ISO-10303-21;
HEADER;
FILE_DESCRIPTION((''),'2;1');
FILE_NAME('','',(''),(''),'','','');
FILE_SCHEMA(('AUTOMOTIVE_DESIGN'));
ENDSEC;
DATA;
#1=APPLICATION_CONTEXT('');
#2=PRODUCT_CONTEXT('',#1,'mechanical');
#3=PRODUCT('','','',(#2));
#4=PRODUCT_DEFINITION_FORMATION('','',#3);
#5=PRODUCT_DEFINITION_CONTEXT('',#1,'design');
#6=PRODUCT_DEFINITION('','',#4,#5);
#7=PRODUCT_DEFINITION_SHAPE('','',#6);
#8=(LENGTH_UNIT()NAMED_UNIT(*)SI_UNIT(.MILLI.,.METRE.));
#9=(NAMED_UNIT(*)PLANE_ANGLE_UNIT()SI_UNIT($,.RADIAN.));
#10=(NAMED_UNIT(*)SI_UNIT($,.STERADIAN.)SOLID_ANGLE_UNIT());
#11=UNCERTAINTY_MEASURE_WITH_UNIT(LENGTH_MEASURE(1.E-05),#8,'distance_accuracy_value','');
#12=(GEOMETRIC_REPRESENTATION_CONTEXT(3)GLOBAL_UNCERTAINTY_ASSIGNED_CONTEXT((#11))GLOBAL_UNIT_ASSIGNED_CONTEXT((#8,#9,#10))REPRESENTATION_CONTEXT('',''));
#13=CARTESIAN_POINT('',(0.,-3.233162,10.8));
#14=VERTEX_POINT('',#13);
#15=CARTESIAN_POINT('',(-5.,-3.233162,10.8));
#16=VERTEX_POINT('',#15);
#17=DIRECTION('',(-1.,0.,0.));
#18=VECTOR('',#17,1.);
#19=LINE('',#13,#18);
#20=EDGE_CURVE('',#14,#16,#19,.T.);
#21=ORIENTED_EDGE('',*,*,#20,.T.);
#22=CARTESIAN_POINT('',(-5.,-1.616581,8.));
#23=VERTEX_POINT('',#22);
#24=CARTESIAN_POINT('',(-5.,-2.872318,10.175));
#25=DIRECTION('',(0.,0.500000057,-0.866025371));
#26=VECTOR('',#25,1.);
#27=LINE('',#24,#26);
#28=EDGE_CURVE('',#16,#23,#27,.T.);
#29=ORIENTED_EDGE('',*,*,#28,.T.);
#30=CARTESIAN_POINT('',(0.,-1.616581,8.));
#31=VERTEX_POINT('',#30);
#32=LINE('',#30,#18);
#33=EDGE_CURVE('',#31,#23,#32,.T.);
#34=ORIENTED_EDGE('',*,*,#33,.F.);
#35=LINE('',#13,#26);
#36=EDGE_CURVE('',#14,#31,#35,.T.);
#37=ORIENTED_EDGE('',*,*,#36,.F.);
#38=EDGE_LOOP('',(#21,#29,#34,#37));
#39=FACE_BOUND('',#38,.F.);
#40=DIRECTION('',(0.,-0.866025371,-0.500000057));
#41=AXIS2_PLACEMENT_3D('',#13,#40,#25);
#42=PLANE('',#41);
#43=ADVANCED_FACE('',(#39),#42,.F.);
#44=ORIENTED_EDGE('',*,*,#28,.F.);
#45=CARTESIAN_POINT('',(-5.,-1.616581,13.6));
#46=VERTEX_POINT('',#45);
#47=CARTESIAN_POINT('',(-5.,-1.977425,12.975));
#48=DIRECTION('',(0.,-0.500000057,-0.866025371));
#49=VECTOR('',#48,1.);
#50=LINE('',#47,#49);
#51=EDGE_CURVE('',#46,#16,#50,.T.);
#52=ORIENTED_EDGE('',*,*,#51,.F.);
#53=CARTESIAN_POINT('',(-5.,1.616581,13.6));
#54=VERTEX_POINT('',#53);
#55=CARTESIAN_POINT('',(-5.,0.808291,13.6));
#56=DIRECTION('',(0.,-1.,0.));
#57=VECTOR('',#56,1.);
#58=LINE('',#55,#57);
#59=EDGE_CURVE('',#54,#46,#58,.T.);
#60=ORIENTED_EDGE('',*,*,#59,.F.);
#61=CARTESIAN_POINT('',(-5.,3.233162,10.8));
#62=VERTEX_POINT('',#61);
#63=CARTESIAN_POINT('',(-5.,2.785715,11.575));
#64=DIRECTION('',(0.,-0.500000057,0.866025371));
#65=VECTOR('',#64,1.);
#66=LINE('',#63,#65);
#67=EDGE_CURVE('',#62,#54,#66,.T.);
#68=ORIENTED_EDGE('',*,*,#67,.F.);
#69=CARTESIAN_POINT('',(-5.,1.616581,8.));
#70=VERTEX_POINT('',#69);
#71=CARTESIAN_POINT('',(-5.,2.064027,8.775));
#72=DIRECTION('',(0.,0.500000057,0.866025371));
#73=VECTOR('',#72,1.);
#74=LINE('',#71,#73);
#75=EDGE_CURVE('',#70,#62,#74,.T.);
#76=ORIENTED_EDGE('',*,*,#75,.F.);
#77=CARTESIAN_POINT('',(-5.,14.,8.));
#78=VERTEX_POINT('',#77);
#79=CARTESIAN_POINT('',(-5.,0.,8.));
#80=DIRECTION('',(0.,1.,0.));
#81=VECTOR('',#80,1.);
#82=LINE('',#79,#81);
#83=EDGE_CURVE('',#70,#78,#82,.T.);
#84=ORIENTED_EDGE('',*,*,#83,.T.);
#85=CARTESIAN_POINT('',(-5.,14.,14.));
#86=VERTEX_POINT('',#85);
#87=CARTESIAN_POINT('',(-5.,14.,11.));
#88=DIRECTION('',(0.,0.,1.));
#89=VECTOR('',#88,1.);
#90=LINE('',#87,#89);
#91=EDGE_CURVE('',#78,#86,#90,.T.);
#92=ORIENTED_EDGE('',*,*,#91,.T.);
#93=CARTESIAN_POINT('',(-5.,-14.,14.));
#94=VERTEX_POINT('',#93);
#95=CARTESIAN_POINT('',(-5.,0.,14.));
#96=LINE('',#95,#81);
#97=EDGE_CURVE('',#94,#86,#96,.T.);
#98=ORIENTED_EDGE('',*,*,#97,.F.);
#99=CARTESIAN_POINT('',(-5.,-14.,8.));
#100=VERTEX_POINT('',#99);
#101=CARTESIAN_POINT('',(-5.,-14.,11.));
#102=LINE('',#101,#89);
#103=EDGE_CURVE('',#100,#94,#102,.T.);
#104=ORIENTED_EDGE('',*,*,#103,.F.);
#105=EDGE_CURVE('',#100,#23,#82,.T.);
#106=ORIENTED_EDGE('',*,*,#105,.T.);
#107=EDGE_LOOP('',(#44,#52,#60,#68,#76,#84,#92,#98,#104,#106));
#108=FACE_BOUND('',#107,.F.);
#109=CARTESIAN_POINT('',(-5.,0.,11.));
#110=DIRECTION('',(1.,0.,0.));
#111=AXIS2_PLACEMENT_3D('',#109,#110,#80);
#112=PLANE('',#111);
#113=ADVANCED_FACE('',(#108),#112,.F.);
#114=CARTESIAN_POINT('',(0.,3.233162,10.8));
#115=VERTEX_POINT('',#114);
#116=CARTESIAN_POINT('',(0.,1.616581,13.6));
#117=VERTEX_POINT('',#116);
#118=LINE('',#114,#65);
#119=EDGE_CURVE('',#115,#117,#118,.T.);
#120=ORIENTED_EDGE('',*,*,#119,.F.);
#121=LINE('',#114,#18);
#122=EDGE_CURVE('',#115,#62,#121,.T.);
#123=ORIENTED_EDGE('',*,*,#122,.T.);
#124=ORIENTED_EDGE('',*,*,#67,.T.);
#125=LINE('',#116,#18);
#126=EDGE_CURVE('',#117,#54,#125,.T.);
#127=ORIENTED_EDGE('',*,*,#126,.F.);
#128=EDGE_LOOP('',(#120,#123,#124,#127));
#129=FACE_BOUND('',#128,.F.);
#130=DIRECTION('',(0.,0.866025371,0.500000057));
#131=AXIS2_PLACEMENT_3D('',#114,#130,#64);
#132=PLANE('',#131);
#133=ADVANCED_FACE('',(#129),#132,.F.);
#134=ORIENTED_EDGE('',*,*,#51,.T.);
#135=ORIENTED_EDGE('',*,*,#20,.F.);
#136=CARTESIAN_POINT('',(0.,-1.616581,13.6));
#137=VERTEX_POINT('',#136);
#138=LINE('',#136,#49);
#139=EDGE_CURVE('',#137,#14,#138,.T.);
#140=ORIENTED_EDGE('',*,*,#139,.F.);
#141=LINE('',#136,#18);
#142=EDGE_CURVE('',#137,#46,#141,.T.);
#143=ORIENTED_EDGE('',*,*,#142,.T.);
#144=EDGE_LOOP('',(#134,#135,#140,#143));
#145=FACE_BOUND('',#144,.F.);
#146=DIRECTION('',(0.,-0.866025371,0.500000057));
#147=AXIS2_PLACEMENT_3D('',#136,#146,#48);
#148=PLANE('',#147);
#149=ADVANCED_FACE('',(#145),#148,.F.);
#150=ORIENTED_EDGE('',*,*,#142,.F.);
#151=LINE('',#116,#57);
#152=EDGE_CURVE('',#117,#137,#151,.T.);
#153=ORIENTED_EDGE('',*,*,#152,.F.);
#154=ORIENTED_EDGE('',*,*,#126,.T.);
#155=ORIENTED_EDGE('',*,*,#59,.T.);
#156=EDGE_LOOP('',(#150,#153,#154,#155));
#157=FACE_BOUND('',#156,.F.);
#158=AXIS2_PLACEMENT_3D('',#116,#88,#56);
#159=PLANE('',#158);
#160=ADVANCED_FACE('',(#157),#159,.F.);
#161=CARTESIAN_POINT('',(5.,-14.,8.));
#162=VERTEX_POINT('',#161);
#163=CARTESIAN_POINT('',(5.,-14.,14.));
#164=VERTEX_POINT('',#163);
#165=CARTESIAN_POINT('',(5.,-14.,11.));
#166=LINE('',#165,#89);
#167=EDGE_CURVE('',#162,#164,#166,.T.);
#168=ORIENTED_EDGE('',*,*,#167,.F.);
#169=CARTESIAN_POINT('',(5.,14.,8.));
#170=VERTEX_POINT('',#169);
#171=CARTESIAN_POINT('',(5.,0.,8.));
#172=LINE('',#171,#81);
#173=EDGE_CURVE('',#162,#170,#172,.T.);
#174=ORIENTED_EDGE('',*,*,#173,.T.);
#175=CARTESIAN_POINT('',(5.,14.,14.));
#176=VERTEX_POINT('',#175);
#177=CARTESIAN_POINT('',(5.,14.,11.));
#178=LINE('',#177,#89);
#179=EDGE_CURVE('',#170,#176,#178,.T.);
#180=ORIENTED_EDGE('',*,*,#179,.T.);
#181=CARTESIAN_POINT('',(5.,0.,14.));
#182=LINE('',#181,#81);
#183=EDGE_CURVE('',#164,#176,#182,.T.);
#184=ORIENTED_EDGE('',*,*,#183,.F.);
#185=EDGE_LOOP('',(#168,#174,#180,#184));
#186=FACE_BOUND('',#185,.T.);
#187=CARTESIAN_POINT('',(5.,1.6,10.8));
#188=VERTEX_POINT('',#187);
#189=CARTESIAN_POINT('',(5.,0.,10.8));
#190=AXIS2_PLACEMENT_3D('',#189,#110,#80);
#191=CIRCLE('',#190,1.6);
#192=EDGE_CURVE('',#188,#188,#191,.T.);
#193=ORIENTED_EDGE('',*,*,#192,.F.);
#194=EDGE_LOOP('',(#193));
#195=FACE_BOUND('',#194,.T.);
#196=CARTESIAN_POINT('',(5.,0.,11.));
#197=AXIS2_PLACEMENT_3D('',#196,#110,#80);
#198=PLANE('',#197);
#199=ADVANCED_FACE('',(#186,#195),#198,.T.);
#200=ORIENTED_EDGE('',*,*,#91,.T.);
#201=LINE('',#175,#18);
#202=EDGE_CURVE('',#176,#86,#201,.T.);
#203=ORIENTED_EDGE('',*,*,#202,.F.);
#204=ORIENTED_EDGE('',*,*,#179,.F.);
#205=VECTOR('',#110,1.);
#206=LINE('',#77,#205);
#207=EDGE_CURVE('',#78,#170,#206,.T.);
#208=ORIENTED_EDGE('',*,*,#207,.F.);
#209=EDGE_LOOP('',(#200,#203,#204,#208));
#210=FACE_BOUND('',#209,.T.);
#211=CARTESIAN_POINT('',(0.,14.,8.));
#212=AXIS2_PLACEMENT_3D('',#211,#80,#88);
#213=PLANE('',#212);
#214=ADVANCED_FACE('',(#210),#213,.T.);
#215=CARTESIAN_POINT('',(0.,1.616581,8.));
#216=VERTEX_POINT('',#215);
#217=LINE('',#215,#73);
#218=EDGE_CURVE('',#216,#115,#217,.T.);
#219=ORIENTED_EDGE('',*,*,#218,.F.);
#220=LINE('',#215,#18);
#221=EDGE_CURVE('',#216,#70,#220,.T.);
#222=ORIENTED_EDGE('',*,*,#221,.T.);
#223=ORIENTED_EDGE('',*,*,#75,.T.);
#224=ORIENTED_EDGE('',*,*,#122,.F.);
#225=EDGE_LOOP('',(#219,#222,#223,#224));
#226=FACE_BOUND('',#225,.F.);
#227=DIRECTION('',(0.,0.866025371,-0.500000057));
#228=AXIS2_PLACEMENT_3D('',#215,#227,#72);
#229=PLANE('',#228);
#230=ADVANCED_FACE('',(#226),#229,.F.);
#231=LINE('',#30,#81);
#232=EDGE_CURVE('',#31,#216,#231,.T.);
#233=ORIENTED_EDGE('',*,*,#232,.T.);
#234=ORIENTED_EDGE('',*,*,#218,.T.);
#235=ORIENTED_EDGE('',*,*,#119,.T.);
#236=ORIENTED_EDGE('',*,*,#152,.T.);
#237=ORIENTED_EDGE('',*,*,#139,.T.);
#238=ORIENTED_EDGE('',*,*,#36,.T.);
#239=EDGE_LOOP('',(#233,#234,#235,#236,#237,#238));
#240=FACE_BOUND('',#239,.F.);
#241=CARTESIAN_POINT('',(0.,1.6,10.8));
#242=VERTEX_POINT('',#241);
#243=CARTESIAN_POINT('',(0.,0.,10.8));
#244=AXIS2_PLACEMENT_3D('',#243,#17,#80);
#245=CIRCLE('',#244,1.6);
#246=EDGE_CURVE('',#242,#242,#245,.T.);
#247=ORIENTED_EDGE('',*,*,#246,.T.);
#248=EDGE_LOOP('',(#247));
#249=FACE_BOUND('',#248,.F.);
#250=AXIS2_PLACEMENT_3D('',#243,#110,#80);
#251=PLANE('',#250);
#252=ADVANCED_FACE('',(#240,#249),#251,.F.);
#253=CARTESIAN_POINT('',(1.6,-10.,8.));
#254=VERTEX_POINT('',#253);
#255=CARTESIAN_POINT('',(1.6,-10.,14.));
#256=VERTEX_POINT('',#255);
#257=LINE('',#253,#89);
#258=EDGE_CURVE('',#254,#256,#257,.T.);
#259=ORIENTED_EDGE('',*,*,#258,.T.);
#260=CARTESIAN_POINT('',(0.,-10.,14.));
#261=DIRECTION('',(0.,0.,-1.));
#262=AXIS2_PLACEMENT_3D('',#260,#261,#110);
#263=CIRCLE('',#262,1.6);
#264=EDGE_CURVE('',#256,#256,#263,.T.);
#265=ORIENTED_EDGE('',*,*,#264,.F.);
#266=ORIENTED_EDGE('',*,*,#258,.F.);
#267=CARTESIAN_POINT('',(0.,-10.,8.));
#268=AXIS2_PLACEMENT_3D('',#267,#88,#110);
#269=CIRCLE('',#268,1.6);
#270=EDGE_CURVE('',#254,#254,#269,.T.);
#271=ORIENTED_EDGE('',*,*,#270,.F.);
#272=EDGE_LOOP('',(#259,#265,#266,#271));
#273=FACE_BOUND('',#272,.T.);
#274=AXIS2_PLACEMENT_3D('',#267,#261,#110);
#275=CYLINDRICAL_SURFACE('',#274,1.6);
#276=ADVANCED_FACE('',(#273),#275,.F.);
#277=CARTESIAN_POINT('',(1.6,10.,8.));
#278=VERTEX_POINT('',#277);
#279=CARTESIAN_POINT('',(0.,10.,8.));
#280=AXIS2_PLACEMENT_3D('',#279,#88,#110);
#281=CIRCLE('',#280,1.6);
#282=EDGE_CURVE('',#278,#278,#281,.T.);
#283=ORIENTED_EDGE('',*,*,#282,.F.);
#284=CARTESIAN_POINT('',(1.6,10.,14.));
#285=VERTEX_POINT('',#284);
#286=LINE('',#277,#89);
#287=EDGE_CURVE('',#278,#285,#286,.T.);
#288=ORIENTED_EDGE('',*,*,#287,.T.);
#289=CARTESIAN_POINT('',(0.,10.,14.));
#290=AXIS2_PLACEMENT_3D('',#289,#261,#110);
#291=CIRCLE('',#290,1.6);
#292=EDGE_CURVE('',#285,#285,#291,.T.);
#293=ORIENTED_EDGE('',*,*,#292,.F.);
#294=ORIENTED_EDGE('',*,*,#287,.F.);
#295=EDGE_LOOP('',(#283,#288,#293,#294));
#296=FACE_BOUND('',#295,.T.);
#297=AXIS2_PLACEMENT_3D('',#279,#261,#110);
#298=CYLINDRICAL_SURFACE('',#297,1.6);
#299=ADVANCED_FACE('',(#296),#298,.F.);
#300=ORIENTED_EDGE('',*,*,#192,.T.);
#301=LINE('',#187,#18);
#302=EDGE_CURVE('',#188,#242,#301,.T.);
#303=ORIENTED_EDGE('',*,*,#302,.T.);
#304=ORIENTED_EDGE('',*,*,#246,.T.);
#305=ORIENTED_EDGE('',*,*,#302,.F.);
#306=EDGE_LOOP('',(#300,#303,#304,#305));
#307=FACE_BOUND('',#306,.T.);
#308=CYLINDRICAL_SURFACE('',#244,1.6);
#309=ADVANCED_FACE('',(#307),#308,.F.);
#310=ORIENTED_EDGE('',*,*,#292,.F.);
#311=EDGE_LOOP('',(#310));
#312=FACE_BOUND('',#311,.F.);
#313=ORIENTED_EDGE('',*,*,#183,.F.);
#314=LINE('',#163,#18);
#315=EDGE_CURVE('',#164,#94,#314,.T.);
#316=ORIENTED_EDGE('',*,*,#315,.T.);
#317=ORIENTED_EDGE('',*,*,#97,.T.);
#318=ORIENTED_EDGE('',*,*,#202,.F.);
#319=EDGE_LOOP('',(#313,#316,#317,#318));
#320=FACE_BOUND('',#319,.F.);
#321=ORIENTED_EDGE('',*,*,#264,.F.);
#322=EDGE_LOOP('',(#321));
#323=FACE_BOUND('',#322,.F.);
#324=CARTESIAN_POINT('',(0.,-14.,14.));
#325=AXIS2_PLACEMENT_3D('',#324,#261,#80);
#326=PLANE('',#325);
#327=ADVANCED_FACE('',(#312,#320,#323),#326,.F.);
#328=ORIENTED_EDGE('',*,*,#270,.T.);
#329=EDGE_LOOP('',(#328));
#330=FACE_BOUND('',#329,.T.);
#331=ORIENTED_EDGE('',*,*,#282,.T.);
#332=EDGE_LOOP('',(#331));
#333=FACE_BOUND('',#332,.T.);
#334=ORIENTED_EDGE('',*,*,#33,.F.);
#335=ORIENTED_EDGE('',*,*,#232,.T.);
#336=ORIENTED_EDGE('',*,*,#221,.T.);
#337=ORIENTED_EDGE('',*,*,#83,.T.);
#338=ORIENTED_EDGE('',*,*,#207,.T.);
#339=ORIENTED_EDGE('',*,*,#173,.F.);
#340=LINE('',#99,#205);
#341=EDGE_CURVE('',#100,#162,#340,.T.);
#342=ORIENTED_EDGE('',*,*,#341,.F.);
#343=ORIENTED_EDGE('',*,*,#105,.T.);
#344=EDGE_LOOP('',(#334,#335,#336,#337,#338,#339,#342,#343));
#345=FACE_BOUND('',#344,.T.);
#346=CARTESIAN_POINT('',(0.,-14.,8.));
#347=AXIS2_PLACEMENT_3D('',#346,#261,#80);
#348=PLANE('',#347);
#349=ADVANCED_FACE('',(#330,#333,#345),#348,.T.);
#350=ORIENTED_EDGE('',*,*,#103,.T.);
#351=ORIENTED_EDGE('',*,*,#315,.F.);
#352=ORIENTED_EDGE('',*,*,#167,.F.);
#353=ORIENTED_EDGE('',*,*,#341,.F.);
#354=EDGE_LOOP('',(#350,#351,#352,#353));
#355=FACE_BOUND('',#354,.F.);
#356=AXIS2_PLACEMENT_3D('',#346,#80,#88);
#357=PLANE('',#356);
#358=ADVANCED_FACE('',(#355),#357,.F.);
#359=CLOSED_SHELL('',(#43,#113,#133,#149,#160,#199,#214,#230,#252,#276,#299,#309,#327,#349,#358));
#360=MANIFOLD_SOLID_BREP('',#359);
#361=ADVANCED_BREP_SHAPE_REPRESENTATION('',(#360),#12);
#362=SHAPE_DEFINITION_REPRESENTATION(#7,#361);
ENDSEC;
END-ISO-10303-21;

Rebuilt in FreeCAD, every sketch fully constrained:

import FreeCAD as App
import Part
import Sketcher
Q = App.Units.Quantity


def add_polygon(sketch, points):
    """Adds a closed chain of lines whose ends are joined by coincident constraints."""
    first, n = sketch.GeometryCount, len(points)
    for a, b in zip(points, points[1:] + points[:1]):
        sketch.addGeometry(Part.LineSegment(App.Vector(*a, 0), App.Vector(*b, 0)), False)
    for i in range(n):
        sketch.addConstraint(Sketcher.Constraint("Coincident", first + i, 2, first + (i + 1) % n, 1))

doc = App.newDocument("Part")
body = doc.addObject("PartDesign::Body", "Body")

# Sketch on YZ plane
sketch1 = doc.addObject("Sketcher::SketchObject", "Sketch")
body.addObject(sketch1)
sketch1.AttachmentSupport = (doc.YZ_Plane, [""])
sketch1.MapMode = "FlatFace"
add_polygon(sketch1, [(-14, 6), (-14, 0), (14, 0), (14, 6)])  # lines 0-3
sketch1.addGeometry(Part.Circle(App.Vector(0, 2.8, 0), App.Vector(0, 0, 1), 1.6), False)  # 4
sketch1.addConstraint(Sketcher.Constraint("Vertical", 0))
sketch1.addConstraint(Sketcher.Constraint("Horizontal", 1))
sketch1.addConstraint(Sketcher.Constraint("Vertical", 2))
sketch1.addConstraint(Sketcher.Constraint("Horizontal", 3))
sketch1.addConstraint(Sketcher.Constraint("Symmetric", 0, 2, 1, 2, -1, 1))
sketch1.addConstraint(Sketcher.Constraint("PointOnObject", 4, 3, -2))
sketch1.addConstraint(Sketcher.Constraint("Diameter", 4, Q("3.2 mm")))
sketch1.addConstraint(Sketcher.Constraint("DistanceX", 1, 1, 1, 2, Q("28 mm")))
sketch1.addConstraint(Sketcher.Constraint("DistanceY", 0, 2, 0, 1, Q("6 mm")))
sketch1.addConstraint(Sketcher.Constraint("DistanceY", -1, 1, 4, 3, Q("2.8 mm")))
pad1 = doc.addObject("PartDesign::Pad", "Pad")
body.addObject(pad1)
pad1.Profile = sketch1
pad1.Length = 10
pad1.Midplane = True

# Sketch on YZ plane
sketch2 = doc.addObject("Sketcher::SketchObject", "Sketch001")
body.addObject(sketch2)
sketch2.AttachmentSupport = (doc.YZ_Plane, [""])
sketch2.MapMode = "FlatFace"
add_polygon(sketch2, [(1.6, 0), (3.2, 2.8), (1.6, 5.6), (-1.6, 5.6), (-3.2, 2.8), (-1.6, 0)])  # lines 0-5
sketch2.addConstraint(Sketcher.Constraint("Horizontal", 2))
sketch2.addConstraint(Sketcher.Constraint("Horizontal", 5))
sketch2.addConstraint(Sketcher.Constraint("Symmetric", 4, 2, 5, 2, -1, 1))
sketch2.addConstraint(Sketcher.Constraint("Symmetric", 0, 2, 3, 2, -2))
sketch2.addConstraint(Sketcher.Constraint("Parallel", 0, 3))
sketch2.addConstraint(Sketcher.Constraint("Parallel", 1, 4))
sketch2.addConstraint(Sketcher.Constraint("Vertical", 2, 2, 4, 2))
sketch2.addConstraint(Sketcher.Constraint("Angle", 0, Q("59.999996 deg")))
sketch2.addConstraint(Sketcher.Constraint("DistanceY", -1, 1, 0, 2, Q("2.8 mm")))
sketch2.addConstraint(Sketcher.Constraint("DistanceX", 2, 2, 2, 1, Q("3.233162 mm")))
pocket1 = doc.addObject("PartDesign::Pocket", "Pocket")
body.addObject(pocket1)
pocket1.Profile = sketch2
pocket1.Type = "ThroughAll"

# Sketch on XY plane
sketch3 = doc.addObject("Sketcher::SketchObject", "Sketch002")
body.addObject(sketch3)
sketch3.AttachmentSupport = (doc.XY_Plane, [""])
sketch3.MapMode = "FlatFace"
sketch3.addGeometry(Part.Circle(App.Vector(0, 10, 0), App.Vector(0, 0, 1), 1.6), False)
sketch3.addGeometry(Part.Circle(App.Vector(0, -10, 0), App.Vector(0, 0, 1), 1.6), False)
sketch3.addConstraint(Sketcher.Constraint("Equal", 0, 1))
sketch3.addConstraint(Sketcher.Constraint("Symmetric", 0, 3, 1, 3, -1, 1))
sketch3.addConstraint(Sketcher.Constraint("PointOnObject", 0, 3, -2))
sketch3.addConstraint(Sketcher.Constraint("Diameter", 0, Q("3.2 mm")))
sketch3.addConstraint(Sketcher.Constraint("DistanceY", -1, 1, 0, 3, Q("10 mm")))
pocket2 = doc.addObject("PartDesign::Pocket", "Pocket001")
body.addObject(pocket2)
pocket2.Profile = sketch3
pocket2.Type = "ThroughAll"
pocket2.Reversed = True
body2 = doc.addObject("PartDesign::Body", "Body001")
doc.recompute()

body.Placement = App.Placement(App.Vector(0, 0, 8), App.Rotation(App.Vector(0, 0, 1), 0))
boolean = doc.addObject("PartDesign::Boolean", "Boolean")
body2.addObject(boolean)
boolean.Type = "Fuse"
boolean.addObjects([body])

doc.recompute()
